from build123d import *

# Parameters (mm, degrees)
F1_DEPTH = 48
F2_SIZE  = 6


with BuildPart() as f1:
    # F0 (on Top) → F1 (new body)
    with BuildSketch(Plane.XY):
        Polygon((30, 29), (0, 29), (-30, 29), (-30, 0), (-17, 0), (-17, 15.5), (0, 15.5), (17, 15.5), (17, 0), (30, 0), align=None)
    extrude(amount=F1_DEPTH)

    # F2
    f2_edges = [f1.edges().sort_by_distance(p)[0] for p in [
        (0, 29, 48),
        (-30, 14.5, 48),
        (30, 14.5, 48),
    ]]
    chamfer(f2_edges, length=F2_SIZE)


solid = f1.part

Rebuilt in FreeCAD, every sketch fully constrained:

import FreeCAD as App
import Part
import Sketcher

V = App.Vector


def edges_at(feature, points):
    """Names of the edges that pass closest to the given points."""
    edges = feature.Shape.Edges
    near = lambda p: min(range(len(edges)), key=lambda i: edges[i].distToShape(Part.Vertex(*p))[0])
    return sorted({f"Edge{near(p) + 1}" for p in points})


def add_polygon(sketch, points):
    """Adds a closed chain of lines whose ends are joined by coincident constraints."""
    first, n = sketch.GeometryCount, len(points)
    for a, b in zip(points, points[1:] + points[:1]):
        sketch.addGeometry(Part.LineSegment(App.Vector(*a, 0), App.Vector(*b, 0)), False)
    for i in range(n):
        sketch.addConstraint(Sketcher.Constraint("Coincident", first + i, 2, first + (i + 1) % n, 1))

doc = App.newDocument("Part")
body = doc.addObject("PartDesign::Body", "Body")

sketch1 = doc.addObject("Sketcher::SketchObject", "Sketch")
body.addObject(sketch1)
sketch1.AttachmentSupport = (doc.XY_Plane, [""])
sketch1.MapMode = "FlatFace"
add_polygon(sketch1, [(30, 29), (-30, 29), (-30, 0), (-17, 0), (-17, 16), (17, 16), (17, 0), (30, 0)])
sketch1.addConstraint([
    Sketcher.Constraint("Horizontal", 0),
    Sketcher.Constraint("Vertical", 1),
    Sketcher.Constraint("Horizontal", 2),
    Sketcher.Constraint("Vertical", 3),
    Sketcher.Constraint("Horizontal", 4),
    Sketcher.Constraint("Vertical", 5),
    Sketcher.Constraint("Horizontal", 6),
    Sketcher.Constraint("Vertical", 7),
    Sketcher.Constraint("Symmetric", 2, 2, 5, 2, -1, 1),
    Sketcher.Constraint("Symmetric", 1, 2, 6, 2, -2),
    Sketcher.Constraint("DistanceX", 0, 2, 0, 1, 60.0),
    Sketcher.Constraint("DistanceX", 2, 1, 2, 2, 13.0),
    Sketcher.Constraint("DistanceY", 1, 2, 1, 1, 29.0),
    Sketcher.Constraint("DistanceY", 3, 1, 3, 2, 15.5),
])
pad1 = doc.addObject("PartDesign::Pad", "Pad")
body.addObject(pad1)
pad1.Profile = sketch1
pad1.Length = 48
doc.recompute()

chamfer = doc.addObject("PartDesign::Chamfer", "Chamfer")
body.addObject(chamfer)
chamfer.Base = (pad1, edges_at(pad1, [(0, 29, 48), (-30, 14.5, 48), (30, 14.5, 48)]))
chamfer.Size = 6

doc.recompute()
